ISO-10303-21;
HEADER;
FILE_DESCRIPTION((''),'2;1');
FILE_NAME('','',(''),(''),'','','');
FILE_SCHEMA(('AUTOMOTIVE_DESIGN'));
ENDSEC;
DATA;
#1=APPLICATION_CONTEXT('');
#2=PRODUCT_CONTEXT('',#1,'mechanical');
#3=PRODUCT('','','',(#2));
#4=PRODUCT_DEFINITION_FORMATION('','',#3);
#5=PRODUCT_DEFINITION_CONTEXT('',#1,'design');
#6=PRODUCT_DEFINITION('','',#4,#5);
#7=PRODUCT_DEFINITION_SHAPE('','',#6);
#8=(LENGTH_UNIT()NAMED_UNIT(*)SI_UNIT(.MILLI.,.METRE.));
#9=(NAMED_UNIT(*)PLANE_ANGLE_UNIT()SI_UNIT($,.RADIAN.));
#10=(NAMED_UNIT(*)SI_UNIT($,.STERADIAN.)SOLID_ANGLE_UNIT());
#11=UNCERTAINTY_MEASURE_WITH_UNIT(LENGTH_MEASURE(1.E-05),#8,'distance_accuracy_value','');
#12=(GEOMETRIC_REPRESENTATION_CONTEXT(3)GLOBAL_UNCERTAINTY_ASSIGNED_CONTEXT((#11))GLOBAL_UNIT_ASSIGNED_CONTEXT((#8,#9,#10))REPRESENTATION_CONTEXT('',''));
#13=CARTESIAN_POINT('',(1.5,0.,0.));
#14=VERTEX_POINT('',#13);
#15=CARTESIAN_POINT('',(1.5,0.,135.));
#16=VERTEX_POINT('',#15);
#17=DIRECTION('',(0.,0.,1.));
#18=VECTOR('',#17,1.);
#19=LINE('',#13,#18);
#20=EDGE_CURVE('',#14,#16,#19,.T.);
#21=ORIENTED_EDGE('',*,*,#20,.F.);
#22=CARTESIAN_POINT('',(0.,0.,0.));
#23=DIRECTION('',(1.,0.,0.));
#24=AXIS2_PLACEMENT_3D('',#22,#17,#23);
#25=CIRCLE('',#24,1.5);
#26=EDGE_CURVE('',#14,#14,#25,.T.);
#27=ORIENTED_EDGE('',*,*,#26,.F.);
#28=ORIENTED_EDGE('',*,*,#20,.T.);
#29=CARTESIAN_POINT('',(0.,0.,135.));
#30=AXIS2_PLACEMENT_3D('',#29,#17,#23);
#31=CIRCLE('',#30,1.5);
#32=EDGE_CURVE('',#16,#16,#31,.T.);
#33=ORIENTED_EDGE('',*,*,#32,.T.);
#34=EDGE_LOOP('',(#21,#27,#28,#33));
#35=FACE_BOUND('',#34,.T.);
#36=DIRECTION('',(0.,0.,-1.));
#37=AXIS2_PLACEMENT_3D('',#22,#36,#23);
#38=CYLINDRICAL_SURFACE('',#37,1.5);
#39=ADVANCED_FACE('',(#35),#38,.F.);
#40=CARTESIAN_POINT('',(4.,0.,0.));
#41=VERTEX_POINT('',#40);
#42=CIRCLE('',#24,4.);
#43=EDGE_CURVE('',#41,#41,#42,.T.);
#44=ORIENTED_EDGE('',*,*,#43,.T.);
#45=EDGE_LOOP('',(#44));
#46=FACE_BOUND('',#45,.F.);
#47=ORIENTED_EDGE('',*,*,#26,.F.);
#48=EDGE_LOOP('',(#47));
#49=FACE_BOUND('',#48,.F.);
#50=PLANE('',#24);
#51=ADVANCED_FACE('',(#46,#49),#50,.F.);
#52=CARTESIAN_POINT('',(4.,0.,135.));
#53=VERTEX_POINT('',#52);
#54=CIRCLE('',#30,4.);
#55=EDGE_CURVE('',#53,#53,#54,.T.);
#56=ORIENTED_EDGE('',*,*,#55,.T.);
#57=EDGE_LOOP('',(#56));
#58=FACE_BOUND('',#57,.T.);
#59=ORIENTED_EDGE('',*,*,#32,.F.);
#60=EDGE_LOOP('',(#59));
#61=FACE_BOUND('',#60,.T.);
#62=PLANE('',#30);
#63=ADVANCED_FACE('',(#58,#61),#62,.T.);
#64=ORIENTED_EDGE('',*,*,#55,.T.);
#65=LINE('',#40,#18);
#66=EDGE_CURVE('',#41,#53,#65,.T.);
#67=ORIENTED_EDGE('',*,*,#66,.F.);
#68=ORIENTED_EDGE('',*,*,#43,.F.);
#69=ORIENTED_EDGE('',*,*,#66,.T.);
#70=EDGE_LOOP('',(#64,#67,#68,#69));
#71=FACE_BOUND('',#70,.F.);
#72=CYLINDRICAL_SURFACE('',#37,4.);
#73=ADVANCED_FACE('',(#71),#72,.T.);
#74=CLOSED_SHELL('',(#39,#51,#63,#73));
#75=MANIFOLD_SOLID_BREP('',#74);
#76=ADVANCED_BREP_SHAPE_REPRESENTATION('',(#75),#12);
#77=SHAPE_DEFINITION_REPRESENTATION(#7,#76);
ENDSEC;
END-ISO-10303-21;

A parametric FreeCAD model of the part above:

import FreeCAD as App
import Part
import Sketcher

doc = App.newDocument("Part")
body = doc.addObject("PartDesign::Body", "Body")

# Sketch on XY plane
sketch1 = body.newObject("Sketcher::SketchObject", "Sketch")
sketch1.AttachmentSupport = (doc.getObject("XY_Plane"), [""])
sketch1.MapMode = "FlatFace"
sketch1.addGeometry([
    Part.Circle(App.Vector(0, 0, 0), App.Vector(0, 0, 1), 4),
    Part.Circle(App.Vector(0, 0, 0), App.Vector(0, 0, 1), 1.5),
], False)
sketch1.addConstraint([
    Sketcher.Constraint("Coincident", 0, 3, -1, 1),
    Sketcher.Constraint("Coincident", 1, 3, -1, 1),
    Sketcher.Constraint("Diameter", 0, 8.0),
    Sketcher.Constraint("Diameter", 1, 3.0),
])
pad1 = body.newObject("PartDesign::Pad", "Pad")
pad1.Profile = sketch1
pad1.Length = 135

doc.recompute()
